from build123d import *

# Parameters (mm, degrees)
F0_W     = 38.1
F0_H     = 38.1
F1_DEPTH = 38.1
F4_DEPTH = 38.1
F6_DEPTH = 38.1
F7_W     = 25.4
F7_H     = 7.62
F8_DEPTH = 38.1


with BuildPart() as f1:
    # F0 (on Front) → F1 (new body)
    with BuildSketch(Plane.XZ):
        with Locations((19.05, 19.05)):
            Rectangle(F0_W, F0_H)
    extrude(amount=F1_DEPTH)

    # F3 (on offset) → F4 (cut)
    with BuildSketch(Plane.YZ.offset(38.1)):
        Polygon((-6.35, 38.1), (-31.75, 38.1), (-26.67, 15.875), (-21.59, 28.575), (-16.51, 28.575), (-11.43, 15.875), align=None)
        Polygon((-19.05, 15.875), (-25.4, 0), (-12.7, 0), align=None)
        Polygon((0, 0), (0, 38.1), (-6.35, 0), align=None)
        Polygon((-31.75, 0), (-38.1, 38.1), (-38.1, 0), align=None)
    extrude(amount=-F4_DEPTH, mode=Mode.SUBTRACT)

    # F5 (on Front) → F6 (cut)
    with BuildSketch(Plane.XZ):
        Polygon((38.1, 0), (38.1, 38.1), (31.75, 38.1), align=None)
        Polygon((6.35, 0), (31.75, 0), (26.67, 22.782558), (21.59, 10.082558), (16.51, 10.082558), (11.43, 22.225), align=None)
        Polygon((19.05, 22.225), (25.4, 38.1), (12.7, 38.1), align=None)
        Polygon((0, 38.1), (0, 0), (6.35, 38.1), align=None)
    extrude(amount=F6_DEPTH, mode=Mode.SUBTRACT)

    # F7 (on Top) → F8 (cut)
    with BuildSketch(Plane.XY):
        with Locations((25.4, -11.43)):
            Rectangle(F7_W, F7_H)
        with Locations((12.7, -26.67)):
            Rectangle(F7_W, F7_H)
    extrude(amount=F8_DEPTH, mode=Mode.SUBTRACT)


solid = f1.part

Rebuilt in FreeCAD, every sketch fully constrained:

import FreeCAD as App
import Part
import Sketcher

V = App.Vector
Q = App.Units.Quantity

doc = App.newDocument("Part")
body = doc.addObject("PartDesign::Body", "Body")

# Sketch on XZ plane
sketch1 = body.newObject("Sketcher::SketchObject", "Sketch")
sketch1.AttachmentSupport = (doc.getObject("XZ_Plane"), [""])
sketch1.MapMode = "FlatFace"
sketch1.addGeometry([
    Part.LineSegment(V(0, 38.1, 0), V(0, 0, 0)),
    Part.LineSegment(V(0, 0, 0), V(38.1, 0, 0)),
    Part.LineSegment(V(38.1, 0, 0), V(38.1, 38.1, 0)),
    Part.LineSegment(V(38.1, 38.1, 0), V(0, 38.1, 0)),
], False)
sketch1.addConstraint([
    Sketcher.Constraint("Coincident", 0, 2, 1, 1),
    Sketcher.Constraint("Coincident", 1, 2, 2, 1),
    Sketcher.Constraint("Coincident", 2, 2, 3, 1),
    Sketcher.Constraint("Coincident", 3, 2, 0, 1),
    Sketcher.Constraint("Vertical", 0),
    Sketcher.Constraint("Horizontal", 1),
    Sketcher.Constraint("Vertical", 2),
    Sketcher.Constraint("Horizontal", 3),
    Sketcher.Constraint("Coincident", 0, 2, -1, 1),
    Sketcher.Constraint("Equal", 3, 0),
    Sketcher.Constraint("DistanceX", 1, 1, 1, 2, Q("1.5 in")),
])
pad1 = body.newObject("PartDesign::Pad", "Pad")
pad1.Profile = sketch1
pad1.Length = Q("1.5 in")

# Sketch on YZ plane
sketch2 = body.newObject("Sketcher::SketchObject", "Sketch001")
sketch2.AttachmentSupport = (doc.getObject("YZ_Plane"), [""])
sketch2.MapMode = "FlatFace"
sketch2.AttachmentOffset = App.Placement(V(0, 0, 1.5 * 25.4), App.Rotation())
sketch2.addGeometry([
    Part.LineSegment(V(-6.35, 38.1, 0), V(-31.75, 38.1, 0)),  # 0
    Part.LineSegment(V(-31.75, 38.1, 0), V(-26.67, 15.875, 0)),  # 1
    Part.LineSegment(V(-26.67, 15.875, 0), V(-21.59, 28.575, 0)),  # 2
    Part.LineSegment(V(-21.59, 28.575, 0), V(-16.51, 28.575, 0)),  # 3
    Part.LineSegment(V(-16.51, 28.575, 0), V(-11.43, 15.875, 0)),  # 4
    Part.LineSegment(V(-11.43, 15.875, 0), V(-6.35, 38.1, 0)),  # 5
    Part.LineSegment(V(-19.05, 15.875, 0), V(-25.4, 0, 0)),  # 6
    Part.LineSegment(V(-25.4, 0, 0), V(-12.7, 0, 0)),  # 7
    Part.LineSegment(V(-12.7, 0, 0), V(-19.05, 15.875, 0)),  # 8
    Part.LineSegment(V(0, 0, 0), V(0, 38.1, 0)),  # 9
    Part.LineSegment(V(0, 38.1, 0), V(-6.35, 0, 0)),  # 10
    Part.LineSegment(V(-6.35, 0, 0), V(0, 0, 0)),  # 11
    Part.LineSegment(V(-31.75, 0, 0), V(-38.1, 38.1, 0)),  # 12
    Part.LineSegment(V(-38.1, 38.1, 0), V(-38.1, 0, 0)),  # 13
    Part.LineSegment(V(-38.1, 0, 0), V(-31.75, 0, 0)),  # 14
], False)
sketch2.addConstraint([
    Sketcher.Constraint("Coincident", 0, 2, 1, 1),
    Sketcher.Constraint("Coincident", 1, 2, 2, 1),
    Sketcher.Constraint("Coincident", 2, 2, 3, 1),
    Sketcher.Constraint("Coincident", 3, 2, 4, 1),
    Sketcher.Constraint("Coincident", 4, 2, 5, 1),
    Sketcher.Constraint("Coincident", 5, 2, 0, 1),
    Sketcher.Constraint("Coincident", 6, 2, 7, 1),
    Sketcher.Constraint("Coincident", 7, 2, 8, 1),
    Sketcher.Constraint("Coincident", 8, 2, 6, 1),
    Sketcher.Constraint("Coincident", 9, 2, 10, 1),
    Sketcher.Constraint("Coincident", 10, 2, 11, 1),
    Sketcher.Constraint("Coincident", 11, 2, 9, 1),
    Sketcher.Constraint("Coincident", 12, 2, 13, 1),
    Sketcher.Constraint("Coincident", 13, 2, 14, 1),
    Sketcher.Constraint("Coincident", 14, 2, 12, 1),
    Sketcher.Constraint("Horizontal", 0),
    Sketcher.Constraint("Horizontal", 3),
    Sketcher.Constraint("Horizontal", 7),
    Sketcher.Constraint("Vertical", 9),
    Sketcher.Constraint("Horizontal", 11),
    Sketcher.Constraint("Vertical", 13),
    Sketcher.Constraint("Horizontal", 14),
    Sketcher.Constraint("Coincident", 11, 2, -1, 1),
    Sketcher.Constraint("PointOnObject", 6, 2, -1),
    Sketcher.Constraint("PointOnObject", 13, 2, -1),
    Sketcher.Constraint("Parallel", 2, 6),
    Sketcher.Constraint("Parallel", 4, 8),
    Sketcher.Constraint("Horizontal", 1, 2, 4, 2),
    Sketcher.Constraint("Horizontal", 4, 2, 8, 2),
    Sketcher.Constraint("Horizontal", 5, 2, 9, 2),
    Sketcher.Constraint("Horizontal", 9, 2, 12, 2),
    Sketcher.Constraint("Vertical", 5, 2, 10, 2),
    Sketcher.Constraint("Vertical", 0, 2, 14, 2),
    Sketcher.Constraint("Equal", 11, 14),
    Sketcher.Constraint("Equal", 2, 4),
    Sketcher.Constraint("Equal", 1, 5),
    Sketcher.Constraint("DistanceX", 0, 2, 0, 1, Q("1 in")),
    Sketcher.Constraint("DistanceX", 3, 1, 3, 2, Q("0.2 in")),
    Sketcher.Constraint("DistanceX", 7, 1, 7, 2, Q("0.5 in")),
    Sketcher.Constraint("DistanceY", 9, 1, 9, 2, Q("1.5 in")),
    Sketcher.Constraint("DistanceX", 6, 2, -1, 1, Q("1 in")),
    Sketcher.Constraint("DistanceX", 13, 2, 7, 2, Q("1 in")),
    Sketcher.Constraint("DistanceX", 0, 2, 1, 2, Q("0.2 in")),
    Sketcher.Constraint("DistanceY", 1, 2, 2, 2, Q("0.5 in")),
])
pocket1 = body.newObject("PartDesign::Pocket", "Pocket")
pocket1.Profile = sketch2
pocket1.Length = Q("1.5 in")

# Sketch on XZ plane
sketch3 = body.newObject("Sketcher::SketchObject", "Sketch002")
sketch3.AttachmentSupport = (doc.getObject("XZ_Plane"), [""])
sketch3.MapMode = "FlatFace"
sketch3.addGeometry([
    Part.LineSegment(V(38.1, 0, 0), V(38.1, 38.1, 0)),  # 0
    Part.LineSegment(V(38.1, 38.1, 0), V(31.75, 38.1, 0)),  # 1
    Part.LineSegment(V(31.75, 38.1, 0), V(38.1, 0, 0)),  # 2
    Part.LineSegment(V(6.35, 0, 0), V(31.75, 0, 0)),  # 3
    Part.LineSegment(V(31.75, 0, 0), V(26.67, 22.782558, 0)),  # 4
    Part.LineSegment(V(26.67, 22.782558, 0), V(21.59, 10.082558, 0)),  # 5
    Part.LineSegment(V(21.59, 10.082558, 0), V(16.51, 10.082558, 0)),  # 6
    Part.LineSegment(V(16.51, 10.082558, 0), V(11.43, 22.225, 0)),  # 7
    Part.LineSegment(V(11.43, 22.225, 0), V(6.35, 0, 0)),  # 8
    Part.LineSegment(V(19.05, 22.225, 0), V(25.4, 38.1, 0)),  # 9
    Part.LineSegment(V(25.4, 38.1, 0), V(12.7, 38.1, 0)),  # 10
    Part.LineSegment(V(12.7, 38.1, 0), V(19.05, 22.225, 0)),  # 11
    Part.LineSegment(V(0, 38.1, 0), V(0, 0, 0)),  # 12
    Part.LineSegment(V(0, 0, 0), V(6.35, 38.1, 0)),  # 13
    Part.LineSegment(V(6.35, 38.1, 0), V(0, 38.1, 0)),  # 14
], False)
sketch3.addConstraint([
    Sketcher.Constraint("Coincident", 0, 2, 1, 1),
    Sketcher.Constraint("Coincident", 1, 2, 2, 1),
    Sketcher.Constraint("Coincident", 2, 2, 0, 1),
    Sketcher.Constraint("Coincident", 3, 2, 4, 1),
    Sketcher.Constraint("Coincident", 4, 2, 5, 1),
    Sketcher.Constraint("Coincident", 5, 2, 6, 1),
    Sketcher.Constraint("Coincident", 6, 2, 7, 1),
    Sketcher.Constraint("Coincident", 7, 2, 8, 1),
    Sketcher.Constraint("Coincident", 8, 2, 3, 1),
    Sketcher.Constraint("Coincident", 9, 2, 10, 1),
    Sketcher.Constraint("Coincident", 10, 2, 11, 1),
    Sketcher.Constraint("Coincident", 11, 2, 9, 1),
    Sketcher.Constraint("Coincident", 12, 2, 13, 1),
    Sketcher.Constraint("Coincident", 13, 2, 14, 1),
    Sketcher.Constraint("Coincident", 14, 2, 12, 1),
    Sketcher.Constraint("Vertical", 0),
    Sketcher.Constraint("Horizontal", 1),
    Sketcher.Constraint("Horizontal", 3),
    Sketcher.Constraint("Horizontal", 6),
    Sketcher.Constraint("Horizontal", 10),
    Sketcher.Constraint("Vertical", 12),
    Sketcher.Constraint("Horizontal", 14),
    Sketcher.Constraint("Coincident", 12, 2, -1, 1),
    Sketcher.Constraint("PointOnObject", 2, 2, -1),
    Sketcher.Constraint("PointOnObject", 3, 2, -1),
    Sketcher.Constraint("Parallel", 5, 9),
    Sketcher.Constraint("Horizontal", 1, 2, 9, 2),
    Sketcher.Constraint("Horizontal", 7, 2, 11, 2),
    Sketcher.Constraint("Horizontal", 10, 2, 13, 2),
    Sketcher.Constraint("Vertical", 1, 2, 3, 2),
    Sketcher.Constraint("Vertical", 8, 2, 13, 2),
    Sketcher.Constraint("Equal", 1, 14),
    Sketcher.Constraint("Equal", 9, 11),
    Sketcher.Constraint("DistanceX", 3, 1, 3, 2, Q("1 in")),
    Sketcher.Constraint("DistanceX", 6, 2, 6, 1, Q("0.2 in")),
    Sketcher.Constraint("DistanceX", 10, 2, 10, 1, Q("0.5 in")),
    Sketcher.Constraint("DistanceY", 0, 1, 0, 2, Q("1.5 in")),
    Sketcher.Constraint("DistanceX", -1, 1, 9, 2, Q("1 in")),
    Sketcher.Constraint("DistanceX", 10, 2, 0, 2, Q("1 in")),
    Sketcher.Constraint("DistanceX", 4, 2, 1, 2, Q("0.2 in")),
    Sketcher.Constraint("DistanceX", 5, 2, 4, 2, Q("0.2 in")),
    Sketcher.Constraint("DistanceY", 5, 2, 4, 2, Q("0.5 in")),
    Sketcher.Constraint("DistanceX", 7, 2, 6, 2, Q("0.2 in")),
    Sketcher.Constraint("Distance", 4, 23.342051),
])
pocket2 = body.newObject("PartDesign::Pocket", "Pocket001")
pocket2.Profile = sketch3
pocket2.Length = Q("1.5 in")
pocket2.Reversed = True

# Sketch on XY plane
sketch4 = body.newObject("Sketcher::SketchObject", "Sketch003")
sketch4.AttachmentSupport = (doc.getObject("XY_Plane"), [""])
sketch4.MapMode = "FlatFace"
sketch4.addGeometry([
    Part.LineSegment(V(12.7, -7.62, 0), V(12.7, -15.24, 0)),  # 0
    Part.LineSegment(V(12.7, -15.24, 0), V(38.1, -15.24, 0)),  # 1
    Part.LineSegment(V(38.1, -15.24, 0), V(38.1, -7.62, 0)),  # 2
    Part.LineSegment(V(38.1, -7.62, 0), V(12.7, -7.62, 0)),  # 3
    Part.LineSegment(V(0, -22.86, 0), V(0, -30.48, 0)),  # 4
    Part.LineSegment(V(0, -30.48, 0), V(25.4, -30.48, 0)),  # 5
    Part.LineSegment(V(25.4, -30.48, 0), V(25.4, -22.86, 0)),  # 6
    Part.LineSegment(V(25.4, -22.86, 0), V(0, -22.86, 0)),  # 7
], False)
sketch4.addConstraint([
    Sketcher.Constraint("Coincident", 0, 2, 1, 1),
    Sketcher.Constraint("Coincident", 1, 2, 2, 1),
    Sketcher.Constraint("Coincident", 2, 2, 3, 1),
    Sketcher.Constraint("Coincident", 3, 2, 0, 1),
    Sketcher.Constraint("Coincident", 4, 2, 5, 1),
    Sketcher.Constraint("Coincident", 5, 2, 6, 1),
    Sketcher.Constraint("Coincident", 6, 2, 7, 1),
    Sketcher.Constraint("Coincident", 7, 2, 4, 1),
    Sketcher.Constraint("Vertical", 0),
    Sketcher.Constraint("Horizontal", 1),
    Sketcher.Constraint("Vertical", 2),
    Sketcher.Constraint("Horizontal", 3),
    Sketcher.Constraint("Vertical", 4),
    Sketcher.Constraint("Horizontal", 5),
    Sketcher.Constraint("Vertical", 6),
    Sketcher.Constraint("Horizontal", 7),
    Sketcher.Constraint("PointOnObject", 4, 2, -2),
    Sketcher.Constraint("Equal", 3, 5),
    Sketcher.Constraint("Equal", 2, 4),
    Sketcher.Constraint("DistanceX", 1, 1, 1, 2, Q("1 in")),
    Sketcher.Constraint("DistanceY", 0, 2, 0, 1, Q("0.3 in")),
    Sketcher.Constraint("DistanceX", -1, 1, 0, 2, Q("0.5 in")),
    Sketcher.Constraint("DistanceY", 0, 2, -1, 1, Q("0.6 in")),
    Sketcher.Constraint("DistanceY", 4, 2, -1, 1, Q("1.2 in")),
])
pocket3 = body.newObject("PartDesign::Pocket", "Pocket002")
pocket3.Profile = sketch4
pocket3.Length = Q("1.5 in")
pocket3.Reversed = True

doc.recompute()
